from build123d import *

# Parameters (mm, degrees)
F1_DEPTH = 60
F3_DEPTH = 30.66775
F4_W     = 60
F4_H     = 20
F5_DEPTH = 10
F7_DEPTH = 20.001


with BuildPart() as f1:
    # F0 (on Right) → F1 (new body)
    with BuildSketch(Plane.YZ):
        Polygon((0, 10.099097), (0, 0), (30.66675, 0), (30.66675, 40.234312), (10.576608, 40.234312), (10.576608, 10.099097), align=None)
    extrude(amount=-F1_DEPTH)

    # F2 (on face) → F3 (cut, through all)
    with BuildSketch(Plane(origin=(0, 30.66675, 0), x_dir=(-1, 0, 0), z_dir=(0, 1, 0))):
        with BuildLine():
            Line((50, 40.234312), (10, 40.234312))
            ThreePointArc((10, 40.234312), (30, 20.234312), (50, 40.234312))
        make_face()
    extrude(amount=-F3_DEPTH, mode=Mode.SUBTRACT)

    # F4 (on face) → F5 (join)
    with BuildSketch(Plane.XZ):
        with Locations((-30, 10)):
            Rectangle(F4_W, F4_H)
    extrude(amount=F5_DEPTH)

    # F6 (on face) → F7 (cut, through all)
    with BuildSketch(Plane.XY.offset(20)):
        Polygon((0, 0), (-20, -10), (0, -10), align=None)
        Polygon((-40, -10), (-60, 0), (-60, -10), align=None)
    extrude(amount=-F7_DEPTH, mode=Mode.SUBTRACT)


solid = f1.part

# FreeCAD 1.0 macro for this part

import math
import FreeCAD as App
import Part
import Sketcher

doc = App.newDocument("Part")
params = doc.addObject("Spreadsheet::Sheet", "Params")
for row, (alias, value) in enumerate([
    ("pad1_length", "60 mm"),
    ("sketch2_radius", "20 mm"),
    ("sketch3_width", "60 mm"),
    ("sketch3_height", "20 mm"),
    ("pad2_length", "10 mm"),
    ("sketch4_width", "20 mm"),
    ("sketch4_height", "10 mm"),
], start=1):
    params.set(f"A{row}", alias)
    params.set(f"B{row}", "=" + value)
    params.setAlias(f"B{row}", alias)

body = doc.addObject("PartDesign::Body", "Body")

# Sketch on YZ plane
sketch1 = body.newObject("Sketcher::SketchObject", "Sketch")
sketch1.AttachmentSupport = (doc.getObject("YZ_Plane"), [""])
sketch1.MapMode = "FlatFace"
sketch1.addGeometry(Part.LineSegment(App.Vector(0, 10, 0), App.Vector(0, 0, 0)), False)
sketch1.addGeometry(Part.LineSegment(App.Vector(0, 0, 0), App.Vector(31, 0, 0)), False)
sketch1.addGeometry(Part.LineSegment(App.Vector(31, 0, 0), App.Vector(31, 40, 0)), False)
sketch1.addGeometry(Part.LineSegment(App.Vector(31, 40, 0), App.Vector(11, 40, 0)), False)
sketch1.addGeometry(Part.LineSegment(App.Vector(11, 40, 0), App.Vector(11, 10, 0)), False)
sketch1.addGeometry(Part.LineSegment(App.Vector(11, 10, 0), App.Vector(0, 10, 0)), False)
sketch1.addConstraint(Sketcher.Constraint("Coincident", 0, 2, 1, 1))
sketch1.addConstraint(Sketcher.Constraint("Coincident", 1, 2, 2, 1))
sketch1.addConstraint(Sketcher.Constraint("Coincident", 2, 2, 3, 1))
sketch1.addConstraint(Sketcher.Constraint("Coincident", 3, 2, 4, 1))
sketch1.addConstraint(Sketcher.Constraint("Coincident", 4, 2, 5, 1))
sketch1.addConstraint(Sketcher.Constraint("Coincident", 5, 2, 0, 1))
sketch1.addConstraint(Sketcher.Constraint("Vertical", 0))
sketch1.addConstraint(Sketcher.Constraint("Horizontal", 1))
sketch1.addConstraint(Sketcher.Constraint("Vertical", 2))
sketch1.addConstraint(Sketcher.Constraint("Horizontal", 3))
sketch1.addConstraint(Sketcher.Constraint("Vertical", 4))
sketch1.addConstraint(Sketcher.Constraint("Horizontal", 5))
sketch1.addConstraint(Sketcher.Constraint("Coincident", 0, 2, -1, 1))
sketch1.addConstraint(Sketcher.Constraint("DistanceX", 1, 1, 1, 2, 30.66675))
sketch1.addConstraint(Sketcher.Constraint("DistanceX", 3, 2, 3, 1, 20.090142))
sketch1.addConstraint(Sketcher.Constraint("DistanceY", 0, 2, 0, 1, 10.099097))
sketch1.addConstraint(Sketcher.Constraint("DistanceY", 2, 1, 2, 2, 40.234312))
pad1 = body.newObject("PartDesign::Pad", "Pad")
pad1.Profile = sketch1
pad1.setExpression("Length", "Params.pad1_length")
pad1.Reversed = True

# Sketch on XZ plane
sketch2 = body.newObject("Sketcher::SketchObject", "Sketch001")
sketch2.AttachmentSupport = (doc.getObject("XZ_Plane"), [""])
sketch2.MapMode = "FlatFace"
sketch2.AttachmentOffset = App.Placement(App.Vector(0, 0, -30.66675), App.Rotation())
sketch2.addGeometry(Part.LineSegment(App.Vector(-50, 40, 0), App.Vector(-10, 40, 0)), False)
sketch2.addGeometry(Part.ArcOfCircle(Part.Circle(App.Vector(-30, 40, 0), App.Vector(0, 0, 1), 20), math.radians(180), math.radians(360)), False)
sketch2.addConstraint(Sketcher.Constraint("Coincident", 0, 1, 1, 1))
sketch2.addConstraint(Sketcher.Constraint("Coincident", 1, 2, 0, 2))
sketch2.addConstraint(Sketcher.Constraint("Horizontal", 0))
sketch2.addConstraint(Sketcher.Constraint("Horizontal", 1, 3, 0, 1))
sketch2.addConstraint(Sketcher.Constraint("Radius", 1, 20.0))
sketch2.addConstraint(Sketcher.Constraint("DistanceX", 1, 3, -1, 1, 30.0))
sketch2.addConstraint(Sketcher.Constraint("DistanceY", -1, 1, 1, 3, 40.234312))
sketch2.setExpression("Constraints[4]", "Params.sketch2_radius")
pocket1 = body.newObject("PartDesign::Pocket", "Pocket")
pocket1.Profile = sketch2
pocket1.Type = "ThroughAll"
pocket1.Reversed = True

# Sketch on XZ plane
sketch3 = body.newObject("Sketcher::SketchObject", "Sketch002")
sketch3.AttachmentSupport = (doc.getObject("XZ_Plane"), [""])
sketch3.MapMode = "FlatFace"
sketch3.addGeometry(Part.LineSegment(App.Vector(-60, 20, 0), App.Vector(-60, 0, 0)), False)
sketch3.addGeometry(Part.LineSegment(App.Vector(-60, 0, 0), App.Vector(0, 0, 0)), False)
sketch3.addGeometry(Part.LineSegment(App.Vector(0, 0, 0), App.Vector(0, 20, 0)), False)
sketch3.addGeometry(Part.LineSegment(App.Vector(0, 20, 0), App.Vector(-60, 20, 0)), False)
sketch3.addConstraint(Sketcher.Constraint("Coincident", 0, 2, 1, 1))
sketch3.addConstraint(Sketcher.Constraint("Coincident", 1, 2, 2, 1))
sketch3.addConstraint(Sketcher.Constraint("Coincident", 2, 2, 3, 1))
sketch3.addConstraint(Sketcher.Constraint("Coincident", 3, 2, 0, 1))
sketch3.addConstraint(Sketcher.Constraint("Vertical", 0))
sketch3.addConstraint(Sketcher.Constraint("Horizontal", 1))
sketch3.addConstraint(Sketcher.Constraint("Vertical", 2))
sketch3.addConstraint(Sketcher.Constraint("Horizontal", 3))
sketch3.addConstraint(Sketcher.Constraint("Coincident", 1, 2, -1, 1))
sketch3.addConstraint(Sketcher.Constraint("DistanceX", 1, 1, 1, 2, 60.0))
sketch3.addConstraint(Sketcher.Constraint("DistanceY", 0, 2, 0, 1, 20.0))
sketch3.setExpression("Constraints[9]", "Params.sketch3_width")
sketch3.setExpression("Constraints[10]", "Params.sketch3_height")
pad2 = body.newObject("PartDesign::Pad", "Pad001")
pad2.Profile = sketch3
pad2.setExpression("Length", "Params.pad2_length")

# Sketch on XY plane
sketch4 = body.newObject("Sketcher::SketchObject", "Sketch003")
sketch4.AttachmentSupport = (doc.getObject("XY_Plane"), [""])
sketch4.MapMode = "FlatFace"
sketch4.AttachmentOffset = App.Placement(App.Vector(0, 0, 20), App.Rotation())
sketch4.addGeometry(Part.LineSegment(App.Vector(0, 0, 0), App.Vector(-20, -10, 0)), False)
sketch4.addGeometry(Part.LineSegment(App.Vector(-20, -10, 0), App.Vector(0, -10, 0)), False)
sketch4.addGeometry(Part.LineSegment(App.Vector(0, -10, 0), App.Vector(0, 0, 0)), False)
sketch4.addGeometry(Part.LineSegment(App.Vector(-40, -10, 0), App.Vector(-60, 0, 0)), False)
sketch4.addGeometry(Part.LineSegment(App.Vector(-60, 0, 0), App.Vector(-60, -10, 0)), False)
sketch4.addGeometry(Part.LineSegment(App.Vector(-60, -10, 0), App.Vector(-40, -10, 0)), False)
sketch4.addConstraint(Sketcher.Constraint("Coincident", 0, 2, 1, 1))
sketch4.addConstraint(Sketcher.Constraint("Coincident", 1, 2, 2, 1))
sketch4.addConstraint(Sketcher.Constraint("Coincident", 2, 2, 0, 1))
sketch4.addConstraint(Sketcher.Constraint("Coincident", 3, 2, 4, 1))
sketch4.addConstraint(Sketcher.Constraint("Coincident", 4, 2, 5, 1))
sketch4.addConstraint(Sketcher.Constraint("Coincident", 5, 2, 3, 1))
sketch4.addConstraint(Sketcher.Constraint("Horizontal", 1))
sketch4.addConstraint(Sketcher.Constraint("Vertical", 2))
sketch4.addConstraint(Sketcher.Constraint("Vertical", 4))
sketch4.addConstraint(Sketcher.Constraint("Horizontal", 5))
sketch4.addConstraint(Sketcher.Constraint("Coincident", 2, 2, -1, 1))
sketch4.addConstraint(Sketcher.Constraint("PointOnObject", 3, 2, -1))
sketch4.addConstraint(Sketcher.Constraint("Horizontal", 1, 2, 4, 2))
sketch4.addConstraint(Sketcher.Constraint("Equal", 1, 5))
sketch4.addConstraint(Sketcher.Constraint("DistanceX", 1, 1, 1, 2, 20.0))
sketch4.addConstraint(Sketcher.Constraint("DistanceY", 2, 1, 2, 2, 10.0))
sketch4.addConstraint(Sketcher.Constraint("DistanceX", 3, 2, -1, 1, 60.0))
sketch4.setExpression("Constraints[14]", "Params.sketch4_width")
sketch4.setExpression("Constraints[15]", "Params.sketch4_height")
pocket2 = body.newObject("PartDesign::Pocket", "Pocket001")
pocket2.Profile = sketch4
pocket2.Type = "ThroughAll"

doc.recompute()
